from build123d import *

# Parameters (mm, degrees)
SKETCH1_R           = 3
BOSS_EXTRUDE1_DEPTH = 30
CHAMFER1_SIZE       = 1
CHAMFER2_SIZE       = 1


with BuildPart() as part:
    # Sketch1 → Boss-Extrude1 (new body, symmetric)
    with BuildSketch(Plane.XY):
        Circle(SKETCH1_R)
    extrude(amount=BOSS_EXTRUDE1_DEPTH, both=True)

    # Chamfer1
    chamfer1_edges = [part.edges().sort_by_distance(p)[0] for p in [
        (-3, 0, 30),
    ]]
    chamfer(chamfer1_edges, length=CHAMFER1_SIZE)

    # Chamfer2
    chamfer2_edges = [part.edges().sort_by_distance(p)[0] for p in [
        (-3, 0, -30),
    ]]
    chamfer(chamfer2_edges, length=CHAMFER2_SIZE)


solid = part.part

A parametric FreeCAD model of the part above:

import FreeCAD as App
import Part
import Sketcher


def edges_at(feature, points):
    """Names of the edges that pass closest to the given points."""
    edges = feature.Shape.Edges
    near = lambda p: min(range(len(edges)), key=lambda i: edges[i].distToShape(Part.Vertex(*p))[0])
    return sorted({f"Edge{near(p) + 1}" for p in points})

doc = App.newDocument("Part")
body = doc.addObject("PartDesign::Body", "Body")

# Sketch on XY plane
sketch1 = body.newObject("Sketcher::SketchObject", "Sketch")
sketch1.AttachmentSupport = (doc.getObject("XY_Plane"), [""])
sketch1.MapMode = "FlatFace"
sketch1.addGeometry(Part.Circle(App.Vector(0, 0, 0), App.Vector(0, 0, 1), 3), False)
sketch1.addConstraint(Sketcher.Constraint("Coincident", 0, 3, -1, 1))
sketch1.addConstraint(Sketcher.Constraint("Diameter", 0, 6.0))
pad1 = body.newObject("PartDesign::Pad", "Pad")
pad1.Profile = sketch1
pad1.Length = 60
pad1.Midplane = True
doc.recompute()

chamfer = body.newObject("PartDesign::Chamfer", "Chamfer")
chamfer.Base = (pad1, edges_at(pad1, [(-3, 0, 30)]))
chamfer.Size = 1
doc.recompute()

chamfer2 = body.newObject("PartDesign::Chamfer", "Chamfer001")
chamfer2.Base = (chamfer, edges_at(chamfer, [(-3, 0, -30)]))
chamfer2.Size = 1

doc.recompute()
